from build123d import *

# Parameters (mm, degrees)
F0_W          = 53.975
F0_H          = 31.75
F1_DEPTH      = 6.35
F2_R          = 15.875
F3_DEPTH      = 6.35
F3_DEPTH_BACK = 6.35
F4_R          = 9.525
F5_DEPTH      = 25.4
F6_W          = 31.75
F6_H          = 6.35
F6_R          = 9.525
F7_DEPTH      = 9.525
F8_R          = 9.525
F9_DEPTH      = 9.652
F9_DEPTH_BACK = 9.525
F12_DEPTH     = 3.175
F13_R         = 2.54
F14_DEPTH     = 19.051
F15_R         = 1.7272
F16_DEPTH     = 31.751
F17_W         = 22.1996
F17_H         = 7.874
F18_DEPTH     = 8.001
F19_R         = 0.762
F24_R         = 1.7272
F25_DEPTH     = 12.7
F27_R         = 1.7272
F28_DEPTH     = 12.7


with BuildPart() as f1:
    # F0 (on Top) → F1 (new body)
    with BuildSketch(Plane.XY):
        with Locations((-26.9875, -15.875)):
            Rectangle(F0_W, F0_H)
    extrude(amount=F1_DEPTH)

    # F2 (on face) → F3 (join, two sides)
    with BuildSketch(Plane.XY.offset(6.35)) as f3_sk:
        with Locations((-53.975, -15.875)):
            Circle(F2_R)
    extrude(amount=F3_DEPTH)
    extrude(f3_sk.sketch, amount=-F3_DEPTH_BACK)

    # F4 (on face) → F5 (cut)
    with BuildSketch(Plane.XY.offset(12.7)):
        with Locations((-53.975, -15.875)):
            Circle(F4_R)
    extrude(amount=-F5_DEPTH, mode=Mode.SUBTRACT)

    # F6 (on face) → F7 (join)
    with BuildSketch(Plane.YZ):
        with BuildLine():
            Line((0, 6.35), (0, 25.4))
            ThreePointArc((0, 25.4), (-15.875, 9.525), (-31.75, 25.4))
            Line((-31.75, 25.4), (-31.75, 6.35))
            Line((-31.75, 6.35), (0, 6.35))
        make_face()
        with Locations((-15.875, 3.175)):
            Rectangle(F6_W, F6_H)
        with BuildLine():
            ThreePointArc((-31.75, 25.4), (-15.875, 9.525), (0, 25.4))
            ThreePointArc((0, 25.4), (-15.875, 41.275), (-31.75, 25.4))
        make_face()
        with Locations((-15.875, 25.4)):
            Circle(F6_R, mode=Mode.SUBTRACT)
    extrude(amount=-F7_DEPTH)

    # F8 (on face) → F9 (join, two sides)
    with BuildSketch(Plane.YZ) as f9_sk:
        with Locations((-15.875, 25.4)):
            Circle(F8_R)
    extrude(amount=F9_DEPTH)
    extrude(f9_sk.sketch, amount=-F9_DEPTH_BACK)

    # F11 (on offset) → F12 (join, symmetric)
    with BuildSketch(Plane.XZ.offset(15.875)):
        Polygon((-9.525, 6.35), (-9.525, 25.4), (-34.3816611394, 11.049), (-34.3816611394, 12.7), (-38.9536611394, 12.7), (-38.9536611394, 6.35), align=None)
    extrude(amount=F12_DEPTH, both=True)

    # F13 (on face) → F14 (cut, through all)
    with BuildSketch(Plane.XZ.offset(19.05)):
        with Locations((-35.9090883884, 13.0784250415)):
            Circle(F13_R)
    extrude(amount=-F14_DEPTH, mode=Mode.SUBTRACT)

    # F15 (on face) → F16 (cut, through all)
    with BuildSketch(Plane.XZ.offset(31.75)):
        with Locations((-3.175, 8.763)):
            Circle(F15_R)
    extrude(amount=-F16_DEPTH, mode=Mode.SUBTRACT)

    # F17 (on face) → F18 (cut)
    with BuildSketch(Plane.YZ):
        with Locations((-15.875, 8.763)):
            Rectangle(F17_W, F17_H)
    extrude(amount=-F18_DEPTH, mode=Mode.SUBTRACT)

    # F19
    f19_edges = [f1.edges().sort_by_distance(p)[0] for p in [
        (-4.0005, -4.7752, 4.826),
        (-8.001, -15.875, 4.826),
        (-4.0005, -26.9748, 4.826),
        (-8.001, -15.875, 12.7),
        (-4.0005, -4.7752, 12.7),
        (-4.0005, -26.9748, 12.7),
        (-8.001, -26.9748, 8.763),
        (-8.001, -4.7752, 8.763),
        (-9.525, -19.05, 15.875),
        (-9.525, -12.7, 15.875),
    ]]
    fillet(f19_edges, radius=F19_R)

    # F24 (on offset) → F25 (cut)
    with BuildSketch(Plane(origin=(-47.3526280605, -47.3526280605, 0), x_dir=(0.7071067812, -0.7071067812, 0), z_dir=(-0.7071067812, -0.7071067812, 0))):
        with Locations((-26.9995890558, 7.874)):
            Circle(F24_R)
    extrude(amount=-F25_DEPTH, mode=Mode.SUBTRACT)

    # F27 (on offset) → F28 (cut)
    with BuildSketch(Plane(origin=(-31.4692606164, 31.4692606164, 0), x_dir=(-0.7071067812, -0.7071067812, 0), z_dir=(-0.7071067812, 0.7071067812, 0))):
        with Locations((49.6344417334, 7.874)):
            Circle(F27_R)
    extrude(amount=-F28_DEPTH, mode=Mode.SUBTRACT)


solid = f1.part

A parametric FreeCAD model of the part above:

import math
import FreeCAD as App
import Part
import Sketcher
Q = App.Units.Quantity


def edges_at(feature, points):
    """Names of the edges that pass closest to the given points."""
    edges = feature.Shape.Edges
    near = lambda p: min(range(len(edges)), key=lambda i: edges[i].distToShape(Part.Vertex(*p))[0])
    return sorted({f"Edge{near(p) + 1}" for p in points})


def add_polygon(sketch, points):
    """Adds a closed chain of lines whose ends are joined by coincident constraints."""
    first, n = sketch.GeometryCount, len(points)
    for a, b in zip(points, points[1:] + points[:1]):
        sketch.addGeometry(Part.LineSegment(App.Vector(*a, 0), App.Vector(*b, 0)), False)
    for i in range(n):
        sketch.addConstraint(Sketcher.Constraint("Coincident", first + i, 2, first + (i + 1) % n, 1))

doc = App.newDocument("Part")
params = doc.addObject("Spreadsheet::Sheet", "Params")
for row, (alias, value) in enumerate([
    ("sketch1_height", "1.25 in"),
    ("sketch1_width", "2.125 in"),
    ("pad1_length", "0.25 in"),
    ("sketch2_diameter", "1.25 in"),
    ("pad2_length", "0.25 in"),
    ("pad2_length2", "0.25 in"),
    ("sketch3_diameter", "0.75 in"),
    ("pocket1_length", "1 in"),
    ("sketch4_diameter", "0.75 in"),
    ("sketch4_height", "1 in"),
    ("sketch4_radius", "0.625 in"),
    ("pad3_length", "0.375 in"),
    ("sketch5_diameter", "0.75 in"),
    ("pad4_length", "0.38 in"),
    ("pad4_length2", "0.375 in"),
    ("sketch6_width", "0.18 in"),
    ("sketch6_height", "0.75 in"),
    ("sketch6_height2", "0.25 in"),
    ("sketch6_length", "1.13 in"),
    ("pad5_length", "0.25 in"),
    ("sketch7_diameter", "0.2 in"),
    ("sketch8_diameter", "0.136 in"),
    ("sketch9_height", "0.31 in"),
    ("sketch9_width", "0.874 in"),
    ("pocket4_length", "0.315 in"),
    ("fillet_radius", "0.03 in"),
    ("sketch10_diameter", "0.136 in"),
    ("pocket5_length", "0.5 in"),
    ("sketch11_diameter", "0.136 in"),
    ("pocket6_length", "0.5 in"),
], start=1):
    params.set(f"A{row}", alias)
    params.set(f"B{row}", "=" + value)
    params.setAlias(f"B{row}", alias)

body = doc.addObject("PartDesign::Body", "Body")

# Sketch on XY plane
sketch1 = body.newObject("Sketcher::SketchObject", "Sketch")
sketch1.AttachmentSupport = (doc.getObject("XY_Plane"), [""])
sketch1.MapMode = "FlatFace"
add_polygon(sketch1, [(-54, 0), (-54, -32), (0, -32), (0, 0)])  # lines 0-3
sketch1.addConstraint([
    Sketcher.Constraint("Vertical", 0),
    Sketcher.Constraint("Horizontal", 1),
    Sketcher.Constraint("Vertical", 2),
    Sketcher.Constraint("Horizontal", 3),
    Sketcher.Constraint("Coincident", 2, 2, -1, 1),
    Sketcher.Constraint("DistanceY", 0, 2, 0, 1, Q("1.25 in")),
    Sketcher.Constraint("DistanceX", 1, 1, 1, 2, Q("2.125 in")),
])
sketch1.setExpression("Constraints[9]", "Params.sketch1_height")
sketch1.setExpression("Constraints[10]", "Params.sketch1_width")
pad1 = body.newObject("PartDesign::Pad", "Pad")
pad1.Profile = sketch1
pad1.setExpression("Length", "Params.pad1_length")

# Sketch on XY plane
sketch2 = body.newObject("Sketcher::SketchObject", "Sketch001")
sketch2.AttachmentSupport = (doc.getObject("XY_Plane"), [""])
sketch2.MapMode = "FlatFace"
sketch2.AttachmentOffset = App.Placement(App.Vector(0, 0, 0.25 * 25.4), App.Rotation())
sketch2.addGeometry(Part.Circle(App.Vector(-54, -16, 0), App.Vector(0, 0, 1), 16), False)
sketch2.addConstraint([
    Sketcher.Constraint("Diameter", 0, Q("1.25 in")),
    Sketcher.Constraint("DistanceX", 0, 3, -1, 1, Q("2.125 in")),
    Sketcher.Constraint("DistanceY", 0, 3, -1, 1, Q("0.625 in")),
])
sketch2.setExpression("Constraints[0]", "Params.sketch2_diameter")
pad2 = body.newObject("PartDesign::Pad", "Pad001")
pad2.Profile = sketch2
pad2.Type = "TwoLengths"
pad2.setExpression("Length", "Params.pad2_length")
pad2.setExpression("Length2", "Params.pad2_length2")

# Sketch on XY plane
sketch3 = body.newObject("Sketcher::SketchObject", "Sketch002")
sketch3.AttachmentSupport = (doc.getObject("XY_Plane"), [""])
sketch3.MapMode = "FlatFace"
sketch3.AttachmentOffset = App.Placement(App.Vector(0, 0, 0.5 * 25.4), App.Rotation())
sketch3.addGeometry(Part.Circle(App.Vector(-54, -16, 0), App.Vector(0, 0, 1), 10), False)
sketch3.addConstraint([
    Sketcher.Constraint("Diameter", 0, Q("0.75 in")),
    Sketcher.Constraint("DistanceX", 0, 3, -1, 1, Q("2.125 in")),
    Sketcher.Constraint("DistanceY", 0, 3, -1, 1, Q("0.625 in")),
])
sketch3.setExpression("Constraints[0]", "Params.sketch3_diameter")
pocket1 = body.newObject("PartDesign::Pocket", "Pocket")
pocket1.Profile = sketch3
pocket1.setExpression("Length", "Params.pocket1_length")

# Sketch on YZ plane
sketch4 = body.newObject("Sketcher::SketchObject", "Sketch003")
sketch4.AttachmentSupport = (doc.getObject("YZ_Plane"), [""])
sketch4.MapMode = "FlatFace"
sketch4.addGeometry([
    Part.LineSegment(App.Vector(-32, 25, 0), App.Vector(-32, 0, 0)),  # 0
    Part.LineSegment(App.Vector(-32, 0, 0), App.Vector(0, 0, 0)),  # 1
    Part.LineSegment(App.Vector(0, 0, 0), App.Vector(0, 25, 0)),  # 2
    Part.ArcOfCircle(Part.Circle(App.Vector(-16, 25, 0), App.Vector(0, 0, 1), 16), math.radians(0), math.radians(180)),  # 3
    Part.Circle(App.Vector(-16, 25, 0), App.Vector(0, 0, 1), 10),  # 4
], False)
sketch4.addConstraint([
    Sketcher.Constraint("Coincident", 0, 2, 1, 1),
    Sketcher.Constraint("Coincident", 1, 2, 2, 1),
    Sketcher.Constraint("Tangent", 2, 2, 3, 1),
    Sketcher.Constraint("Tangent", 3, 2, 0, 1),
    Sketcher.Constraint("Vertical", 0),
    Sketcher.Constraint("Horizontal", 1),
    Sketcher.Constraint("Vertical", 2),
    Sketcher.Constraint("Coincident", 1, 2, -1, 1),
    Sketcher.Constraint("Coincident", 4, 3, 3, 3),
    Sketcher.Constraint("Diameter", 4, Q("0.75 in")),
    Sketcher.Constraint("DistanceY", 0, 2, 0, 1, Q("1 in")),
    Sketcher.Constraint("Radius", 3, Q("0.625 in")),
])
sketch4.setExpression("Constraints[9]", "Params.sketch4_diameter")
sketch4.setExpression("Constraints[10]", "Params.sketch4_height")
sketch4.setExpression("Constraints[11]", "Params.sketch4_radius")
pad3 = body.newObject("PartDesign::Pad", "Pad002")
pad3.Profile = sketch4
pad3.setExpression("Length", "Params.pad3_length")
pad3.Reversed = True

# Sketch on YZ plane
sketch5 = body.newObject("Sketcher::SketchObject", "Sketch004")
sketch5.AttachmentSupport = (doc.getObject("YZ_Plane"), [""])
sketch5.MapMode = "FlatFace"
sketch5.addGeometry(Part.Circle(App.Vector(-16, 25, 0), App.Vector(0, 0, 1), 10), False)
sketch5.addConstraint([
    Sketcher.Constraint("Diameter", 0, Q("0.75 in")),
    Sketcher.Constraint("DistanceY", -1, 1, 0, 3, Q("1 in")),
    Sketcher.Constraint("DistanceX", 0, 3, -1, 1, Q("0.625 in")),
])
sketch5.setExpression("Constraints[0]", "Params.sketch5_diameter")
pad4 = body.newObject("PartDesign::Pad", "Pad003")
pad4.Profile = sketch5
pad4.Type = "TwoLengths"
pad4.setExpression("Length", "Params.pad4_length")
pad4.setExpression("Length2", "Params.pad4_length2")

# Sketch on XZ plane
sketch6 = body.newObject("Sketcher::SketchObject", "Sketch005")
sketch6.AttachmentSupport = (doc.getObject("XZ_Plane"), [""])
sketch6.MapMode = "FlatFace"
sketch6.AttachmentOffset = App.Placement(App.Vector(0, 0, 0.625 * 25.4), App.Rotation())
add_polygon(sketch6, [(-9.5, 6.3), (-9.5, 25.4), (-34.4, 11), (-34.4, 12.7), (-39, 12.7), (-39, 6.3)])  # lines 0-5
sketch6.addConstraint([
    Sketcher.Constraint("Vertical", 0),
    Sketcher.Constraint("Vertical", 2),
    Sketcher.Constraint("Horizontal", 3),
    Sketcher.Constraint("Vertical", 4),
    Sketcher.Constraint("Horizontal", 5),
    Sketcher.Constraint("DistanceY", -1, 1, 0, 2, Q("1 in")),
    Sketcher.Constraint("Angle", 1, Q("-150 deg")),
    Sketcher.Constraint("DistanceX", 3, 2, 3, 1, Q("0.18 in")),
    Sketcher.Constraint("DistanceY", 0, 1, 0, 2, Q("0.75 in")),
    Sketcher.Constraint("DistanceY", 4, 2, 4, 1, Q("0.25 in")),
    Sketcher.Constraint("Distance", 1, Q("1.13 in")),
    Sketcher.Constraint("DistanceX", 0, 2, -1, 1, Q("0.375 in")),
])
sketch6.setExpression("Constraints[13]", "Params.sketch6_width")
sketch6.setExpression("Constraints[14]", "Params.sketch6_height")
sketch6.setExpression("Constraints[15]", "Params.sketch6_height2")
sketch6.setExpression("Constraints[16]", "Params.sketch6_length")
pad5 = body.newObject("PartDesign::Pad", "Pad004")
pad5.Profile = sketch6
pad5.setExpression("Length", "Params.pad5_length")
pad5.Midplane = True

# Sketch on XZ plane
sketch7 = body.newObject("Sketcher::SketchObject", "Sketch006")
sketch7.AttachmentSupport = (doc.getObject("XZ_Plane"), [""])
sketch7.MapMode = "FlatFace"
sketch7.AttachmentOffset = App.Placement(App.Vector(0, 0, 0.75 * 25.4), App.Rotation())
sketch7.addGeometry(Part.Circle(App.Vector(-35.9, 13.1, 0), App.Vector(0, 0, 1), 2.5), False)
sketch7.addConstraint([
    Sketcher.Constraint("Diameter", 0, Q("0.2 in")),
    Sketcher.Constraint("DistanceX", 0, 3, -1, 1, 35.909088),
    Sketcher.Constraint("DistanceY", -1, 1, 0, 3, 13.078425),
])
sketch7.setExpression("Constraints[0]", "Params.sketch7_diameter")
pocket2 = body.newObject("PartDesign::Pocket", "Pocket001")
pocket2.Profile = sketch7
pocket2.Type = "ThroughAll"

# Sketch on XZ plane
sketch8 = body.newObject("Sketcher::SketchObject", "Sketch007")
sketch8.AttachmentSupport = (doc.getObject("XZ_Plane"), [""])
sketch8.MapMode = "FlatFace"
sketch8.AttachmentOffset = App.Placement(App.Vector(0, 0, 1.25 * 25.4), App.Rotation())
sketch8.addGeometry(Part.Circle(App.Vector(-3.2, 8.8, 0), App.Vector(0, 0, 1), 1.7), False)
sketch8.addConstraint([
    Sketcher.Constraint("Diameter", 0, Q("0.136 in")),
    Sketcher.Constraint("DistanceX", 0, 3, -1, 1, Q("0.125 in")),
    Sketcher.Constraint("DistanceY", -1, 1, 0, 3, Q("0.345 in")),
])
sketch8.setExpression("Constraints[0]", "Params.sketch8_diameter")
pocket3 = body.newObject("PartDesign::Pocket", "Pocket002")
pocket3.Profile = sketch8
pocket3.Type = "ThroughAll"

# Sketch on YZ plane
sketch9 = body.newObject("Sketcher::SketchObject", "Sketch008")
sketch9.AttachmentSupport = (doc.getObject("YZ_Plane"), [""])
sketch9.MapMode = "FlatFace"
add_polygon(sketch9, [(-27, 13), (-27, 5), (-5, 5), (-5, 13)])  # lines 0-3
sketch9.addConstraint([
    Sketcher.Constraint("Vertical", 0),
    Sketcher.Constraint("Horizontal", 1),
    Sketcher.Constraint("Vertical", 2),
    Sketcher.Constraint("Horizontal", 3),
    Sketcher.Constraint("DistanceY", 0, 2, 0, 1, Q("0.31 in")),
    Sketcher.Constraint("DistanceY", -1, 1, 2, 2, Q("0.5 in")),
    Sketcher.Constraint("DistanceX", 1, 1, 1, 2, Q("0.874 in")),
    Sketcher.Constraint("DistanceX", 0, 2, -1, 1, Q("1.062 in")),
])
sketch9.setExpression("Constraints[8]", "Params.sketch9_height")
sketch9.setExpression("Constraints[10]", "Params.sketch9_width")
pocket4 = body.newObject("PartDesign::Pocket", "Pocket003")
pocket4.Profile = sketch9
pocket4.setExpression("Length", "Params.pocket4_length")
doc.recompute()

fillet = body.newObject("PartDesign::Fillet", "Fillet")
fillet.Base = (pocket4, edges_at(pocket4, [
    (-4, -4.775, 4.826),
    (-8.001, -15.875, 4.826),
    (-4, -26.975, 4.826),
    (-8.001, -15.875, 12.7),
    (-4, -4.775, 12.7),
    (-4, -26.975, 12.7),
    (-8.001, -26.975, 8.763),
    (-8.001, -4.775, 8.763),
    (-9.525, -19.05, 15.875),
    (-9.525, -12.7, 15.875),
]))
fillet.setExpression("Radius", "Params.fillet_radius")

# Sketch on an angled plane
sketch10 = body.newObject("Sketcher::SketchObject", "Sketch009")
sketch10.Placement = App.Placement(App.Vector(-47.352628, -47.352628, 0), App.Rotation(App.Vector(0.707106781, -0.707106781, 0), App.Vector(0, 0, 0.999999999), App.Vector(-0.707106781, -0.707106781, 0), "ZXY"))
sketch10.addGeometry(Part.Circle(App.Vector(-27, 7.9, 0), App.Vector(0, 0, 1), 1.7), False)
sketch10.addConstraint([
    Sketcher.Constraint("Diameter", 0, Q("0.136 in")),
    Sketcher.Constraint("DistanceY", -1, 1, 0, 3, Q("0.31 in")),
    Sketcher.Constraint("DistanceX", 0, 3, -1, 1, 26.999589),
])
sketch10.setExpression("Constraints[0]", "Params.sketch10_diameter")
pocket5 = body.newObject("PartDesign::Pocket", "Pocket004")
pocket5.Profile = sketch10
pocket5.setExpression("Length", "Params.pocket5_length")

# Sketch on an angled plane
sketch11 = body.newObject("Sketcher::SketchObject", "Sketch010")
sketch11.Placement = App.Placement(App.Vector(-31.469261, 31.469261, 0), App.Rotation(App.Vector(-0.707106781, -0.707106781, 0), App.Vector(0, 0, 0.999999999), App.Vector(-0.707106781, 0.707106781, 0), "ZXY"))
sketch11.addGeometry(Part.Circle(App.Vector(49.6, 7.9, 0), App.Vector(0, 0, 1), 1.7), False)
sketch11.addConstraint([
    Sketcher.Constraint("Diameter", 0, Q("0.136 in")),
    Sketcher.Constraint("DistanceY", -1, 1, 0, 3, Q("0.31 in")),
    Sketcher.Constraint("DistanceX", -1, 1, 0, 3, 49.634442),
])
sketch11.setExpression("Constraints[0]", "Params.sketch11_diameter")
pocket6 = body.newObject("PartDesign::Pocket", "Pocket005")
pocket6.Profile = sketch11
pocket6.setExpression("Length", "Params.pocket6_length")

doc.recompute()
